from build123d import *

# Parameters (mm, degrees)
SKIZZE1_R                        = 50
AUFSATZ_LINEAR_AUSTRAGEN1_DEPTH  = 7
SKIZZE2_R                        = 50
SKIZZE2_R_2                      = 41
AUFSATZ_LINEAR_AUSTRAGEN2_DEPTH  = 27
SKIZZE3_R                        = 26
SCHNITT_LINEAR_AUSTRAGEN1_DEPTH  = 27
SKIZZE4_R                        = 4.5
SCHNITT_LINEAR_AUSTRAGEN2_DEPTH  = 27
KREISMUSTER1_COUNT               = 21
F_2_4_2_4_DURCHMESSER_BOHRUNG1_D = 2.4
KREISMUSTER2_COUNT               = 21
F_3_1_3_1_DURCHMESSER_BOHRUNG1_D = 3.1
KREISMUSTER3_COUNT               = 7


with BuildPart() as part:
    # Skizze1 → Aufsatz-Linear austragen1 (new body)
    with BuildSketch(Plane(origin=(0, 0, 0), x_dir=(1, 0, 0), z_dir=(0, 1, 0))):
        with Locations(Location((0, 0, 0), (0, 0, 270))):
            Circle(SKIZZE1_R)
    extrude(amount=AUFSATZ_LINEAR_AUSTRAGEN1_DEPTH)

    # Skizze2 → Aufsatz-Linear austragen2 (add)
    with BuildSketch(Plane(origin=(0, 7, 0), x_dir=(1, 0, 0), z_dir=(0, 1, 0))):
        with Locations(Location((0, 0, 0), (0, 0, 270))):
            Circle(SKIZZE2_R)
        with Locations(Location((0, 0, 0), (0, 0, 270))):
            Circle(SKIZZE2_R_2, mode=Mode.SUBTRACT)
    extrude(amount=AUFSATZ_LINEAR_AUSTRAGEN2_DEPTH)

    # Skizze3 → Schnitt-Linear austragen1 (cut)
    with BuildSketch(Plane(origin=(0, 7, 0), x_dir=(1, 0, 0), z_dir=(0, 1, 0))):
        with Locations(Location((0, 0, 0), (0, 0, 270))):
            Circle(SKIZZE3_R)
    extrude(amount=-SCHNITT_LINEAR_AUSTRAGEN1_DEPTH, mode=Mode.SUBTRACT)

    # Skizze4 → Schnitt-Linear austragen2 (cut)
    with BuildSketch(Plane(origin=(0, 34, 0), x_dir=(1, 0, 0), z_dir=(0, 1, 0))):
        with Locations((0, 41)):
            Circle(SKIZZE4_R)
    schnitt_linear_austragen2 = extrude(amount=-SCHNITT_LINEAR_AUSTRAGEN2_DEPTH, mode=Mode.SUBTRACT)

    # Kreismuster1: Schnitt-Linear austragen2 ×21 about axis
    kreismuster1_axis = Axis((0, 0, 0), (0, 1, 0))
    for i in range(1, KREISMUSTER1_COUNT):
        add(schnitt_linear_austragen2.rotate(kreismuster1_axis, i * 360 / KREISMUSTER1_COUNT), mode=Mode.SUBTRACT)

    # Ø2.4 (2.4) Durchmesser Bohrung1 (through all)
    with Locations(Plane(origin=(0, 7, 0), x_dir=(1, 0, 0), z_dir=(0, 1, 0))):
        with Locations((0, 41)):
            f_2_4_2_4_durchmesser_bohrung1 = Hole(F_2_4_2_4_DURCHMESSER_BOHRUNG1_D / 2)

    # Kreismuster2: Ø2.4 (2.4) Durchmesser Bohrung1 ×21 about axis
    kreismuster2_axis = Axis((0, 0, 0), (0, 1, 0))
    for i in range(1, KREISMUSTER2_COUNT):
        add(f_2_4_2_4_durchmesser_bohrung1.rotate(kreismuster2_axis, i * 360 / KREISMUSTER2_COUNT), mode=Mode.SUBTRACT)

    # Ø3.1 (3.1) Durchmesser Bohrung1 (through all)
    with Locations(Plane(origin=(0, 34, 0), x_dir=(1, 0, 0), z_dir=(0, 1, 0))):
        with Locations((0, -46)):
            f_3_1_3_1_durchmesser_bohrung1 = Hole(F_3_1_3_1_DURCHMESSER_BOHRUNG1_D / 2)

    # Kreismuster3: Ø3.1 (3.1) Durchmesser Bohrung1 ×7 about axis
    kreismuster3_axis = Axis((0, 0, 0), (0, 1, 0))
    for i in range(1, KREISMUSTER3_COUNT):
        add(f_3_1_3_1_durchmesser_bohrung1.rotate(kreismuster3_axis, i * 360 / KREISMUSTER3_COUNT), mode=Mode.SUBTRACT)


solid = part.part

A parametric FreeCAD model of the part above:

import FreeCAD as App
import Part
import Sketcher
Q = App.Units.Quantity

doc = App.newDocument("Part")
body = doc.addObject("PartDesign::Body", "Body")

sketch1 = body.newObject("Sketcher::SketchObject", "Sketch")
sketch1.AttachmentSupport = (doc.getObject("XZ_Plane"), [""])
sketch1.MapMode = "FlatFace"
sketch1.addGeometry(Part.Circle(App.Vector(0, 0, 0), App.Vector(0, 0, 1), 50), False)
sketch1.addConstraint([
    Sketcher.Constraint("Coincident", 0, 3, -1, 1),
    Sketcher.Constraint("Diameter", 0, Q("100 mm")),
])
pad1 = body.newObject("PartDesign::Pad", "Pad")
pad1.Profile = sketch1
pad1.Length = 7
pad1.Reversed = True

sketch2 = body.newObject("Sketcher::SketchObject", "Sketch001")
sketch2.AttachmentSupport = (doc.getObject("XZ_Plane"), [""])
sketch2.MapMode = "FlatFace"
sketch2.AttachmentOffset = App.Placement(App.Vector(0, 0, -7), App.Rotation())
sketch2.addGeometry([
    Part.Circle(App.Vector(0, 0, 0), App.Vector(0, 0, 1), 50),
    Part.Circle(App.Vector(0, 0, 0), App.Vector(0, 0, 1), 41),
], False)
sketch2.addConstraint([
    Sketcher.Constraint("Coincident", 0, 3, -1, 1),
    Sketcher.Constraint("Coincident", 1, 3, -1, 1),
    Sketcher.Constraint("Diameter", 0, Q("100 mm")),
    Sketcher.Constraint("Diameter", 1, Q("82 mm")),
])
pad2 = body.newObject("PartDesign::Pad", "Pad001")
pad2.Profile = sketch2
pad2.Length = 27
pad2.Reversed = True

sketch3 = body.newObject("Sketcher::SketchObject", "Sketch002")
sketch3.AttachmentSupport = (doc.getObject("XZ_Plane"), [""])
sketch3.MapMode = "FlatFace"
sketch3.AttachmentOffset = App.Placement(App.Vector(0, 0, -7), App.Rotation())
sketch3.addGeometry(Part.Circle(App.Vector(0, 0, 0), App.Vector(0, 0, 1), 26), False)
sketch3.addConstraint([
    Sketcher.Constraint("Coincident", 0, 3, -1, 1),
    Sketcher.Constraint("Diameter", 0, Q("52 mm")),
])
pocket1 = body.newObject("PartDesign::Pocket", "Pocket")
pocket1.Profile = sketch3
pocket1.Length = 27
pocket1.Reversed = True

sketch4 = body.newObject("Sketcher::SketchObject", "Sketch003")
sketch4.AttachmentSupport = (doc.getObject("XZ_Plane"), [""])
sketch4.MapMode = "FlatFace"
sketch4.AttachmentOffset = App.Placement(App.Vector(0, 0, -34), App.Rotation())
sketch4.addGeometry(Part.Circle(App.Vector(0, -41, 0), App.Vector(0, 0, 1), 4.5), False)
sketch4.addConstraint([
    Sketcher.Constraint("PointOnObject", 0, 3, -2),
    Sketcher.Constraint("Diameter", 0, Q("9 mm")),
    Sketcher.Constraint("DistanceY", 0, 3, -1, 1, Q("41 mm")),
])
pocket2 = body.newObject("PartDesign::Pocket", "Pocket001")
pocket2.Profile = sketch4
pocket2.Length = 27
pocket2.Reversed = True
doc.recompute()

polarpattern = body.newObject("PartDesign::PolarPattern", "PolarPattern")
polarpattern.Originals = [pocket2]
polarpattern.Axis = (doc.getObject("Y_Axis"), [""])
polarpattern.Angle = 360
polarpattern.Occurrences = 21
body.Tip = polarpattern

sketch5 = body.newObject("Sketcher::SketchObject", "Sketch004")
sketch5.AttachmentSupport = (doc.getObject("XZ_Plane"), [""])
sketch5.MapMode = "FlatFace"
sketch5.AttachmentOffset = App.Placement(App.Vector(0, 0, -7), App.Rotation())
sketch5.addGeometry(Part.Circle(App.Vector(0, -41, 0), App.Vector(0, 0, 1), 1.2), False)
sketch5.addConstraint([
    Sketcher.Constraint("PointOnObject", 0, 3, -2),
    Sketcher.Constraint("Diameter", 0, Q("2.4 mm")),
    Sketcher.Constraint("DistanceY", 0, 3, -1, 1, Q("41 mm")),
])
doc.recompute()
hole = body.newObject("PartDesign::Hole", "Hole")
hole.Profile = sketch5
hole.ThreadType = "None"
hole.Diameter = 2.4
hole.DepthType = "ThroughAll"
hole.Reversed = True
doc.recompute()

polarpattern2 = body.newObject("PartDesign::PolarPattern", "PolarPattern001")
polarpattern2.Originals = [hole]
polarpattern2.Axis = (doc.getObject("Y_Axis"), [""])
polarpattern2.Angle = 360
polarpattern2.Occurrences = 21
body.Tip = polarpattern2

sketch6 = body.newObject("Sketcher::SketchObject", "Sketch005")
sketch6.AttachmentSupport = (doc.getObject("XZ_Plane"), [""])
sketch6.MapMode = "FlatFace"
sketch6.AttachmentOffset = App.Placement(App.Vector(0, 0, -34), App.Rotation())
sketch6.addGeometry(Part.Circle(App.Vector(0, 46, 0), App.Vector(0, 0, 1), 1.6), False)
sketch6.addConstraint([
    Sketcher.Constraint("PointOnObject", 0, 3, -2),
    Sketcher.Constraint("Diameter", 0, Q("3.1 mm")),
    Sketcher.Constraint("DistanceY", -1, 1, 0, 3, Q("46 mm")),
])
doc.recompute()
hole2 = body.newObject("PartDesign::Hole", "Hole001")
hole2.Profile = sketch6
hole2.ThreadType = "None"
hole2.Diameter = 3.1
hole2.DepthType = "ThroughAll"
hole2.Reversed = True
doc.recompute()

polarpattern3 = body.newObject("PartDesign::PolarPattern", "PolarPattern002")
polarpattern3.Originals = [hole2]
polarpattern3.Axis = (doc.getObject("Y_Axis"), [""])
polarpattern3.Angle = 360
polarpattern3.Occurrences = 7
body.Tip = polarpattern3

doc.recompute()
